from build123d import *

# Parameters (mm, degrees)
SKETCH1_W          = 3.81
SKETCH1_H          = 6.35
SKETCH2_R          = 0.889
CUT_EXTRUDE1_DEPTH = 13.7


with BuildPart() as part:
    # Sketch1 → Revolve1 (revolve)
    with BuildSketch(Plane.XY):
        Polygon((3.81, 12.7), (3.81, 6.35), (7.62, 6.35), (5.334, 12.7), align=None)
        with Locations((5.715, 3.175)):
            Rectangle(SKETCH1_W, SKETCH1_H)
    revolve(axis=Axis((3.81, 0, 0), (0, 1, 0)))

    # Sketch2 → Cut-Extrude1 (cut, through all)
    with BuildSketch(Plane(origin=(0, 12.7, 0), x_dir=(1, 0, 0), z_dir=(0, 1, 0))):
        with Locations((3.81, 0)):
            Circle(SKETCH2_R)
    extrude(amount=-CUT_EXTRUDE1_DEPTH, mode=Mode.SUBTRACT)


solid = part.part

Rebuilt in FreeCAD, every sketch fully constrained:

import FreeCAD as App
import Part
import Sketcher
from FreeCAD import Vector
Q = App.Units.Quantity


def add_polygon(sketch, points):
    """Adds a closed chain of lines whose ends are joined by coincident constraints."""
    first, n = sketch.GeometryCount, len(points)
    for a, b in zip(points, points[1:] + points[:1]):
        sketch.addGeometry(Part.LineSegment(App.Vector(*a, 0), App.Vector(*b, 0)), False)
    for i in range(n):
        sketch.addConstraint(Sketcher.Constraint("Coincident", first + i, 2, first + (i + 1) % n, 1))

doc = App.newDocument("Part")
params = doc.addObject("Spreadsheet::Sheet", "Params")
for row, (alias, value) in enumerate([
    ("sketch1_height", "0.5 in"),
    ("sketch1_width", "0.15 in"),
    ("sketch1_width2", "0.06 in"),
    ("sketch1_height2", "0.25 in"),
    ("revolution_angle", "360 deg"),
    ("sketch2_diameter", "0.07 in"),
], start=1):
    params.set(f"A{row}", alias)
    params.set(f"B{row}", "=" + value)
    params.setAlias(f"B{row}", alias)

body = doc.addObject("PartDesign::Body", "Body")

sketch1 = body.newObject("Sketcher::SketchObject", "Sketch")
sketch1.AttachmentSupport = (doc.getObject("XY_Plane"), [""])
sketch1.MapMode = "FlatFace"
add_polygon(sketch1, [(3.81, 12.7), (3.81, 0), (7.62, 0), (7.62, 6.35), (5.334, 12.7)])
sketch1.addGeometry(Part.LineSegment(Vector(3.81, 0, 0), Vector(3.81, 12.7, 0)), True)
sketch1.addConstraint([
    Sketcher.Constraint("Vertical", 0),
    Sketcher.Constraint("Horizontal", 1),
    Sketcher.Constraint("Vertical", 2),
    Sketcher.Constraint("Horizontal", 4),
    Sketcher.Constraint("Vertical", 5),
    Sketcher.Constraint("Coincident", 5, 1, 0, 2),
    Sketcher.Constraint("PointOnObject", 0, 2, -1),
    Sketcher.Constraint("Horizontal", 3, 2, 5, 2),
    Sketcher.Constraint("DistanceY", 0, 2, 0, 1, Q("0.5 in")),
    Sketcher.Constraint("DistanceX", 1, 1, 1, 2, Q("0.15 in")),
    Sketcher.Constraint("DistanceX", 4, 2, 4, 1, Q("0.06 in")),
    Sketcher.Constraint("DistanceY", 2, 1, 2, 2, Q("0.25 in")),
    Sketcher.Constraint("DistanceX", -1, 1, 1, 2, Q("0.3 in")),
])
sketch1.setExpression("Constraints[13]", "Params.sketch1_height")
sketch1.setExpression("Constraints[14]", "Params.sketch1_width")
sketch1.setExpression("Constraints[15]", "Params.sketch1_width2")
sketch1.setExpression("Constraints[16]", "Params.sketch1_height2")
revolution = body.newObject("PartDesign::Revolution", "Revolution")
revolution.Profile = sketch1
revolution.ReferenceAxis = (sketch1, ["Axis0"])
revolution.setExpression("Angle", "Params.revolution_angle")

sketch2 = body.newObject("Sketcher::SketchObject", "Sketch001")
sketch2.AttachmentSupport = (doc.getObject("XZ_Plane"), [""])
sketch2.MapMode = "FlatFace"
sketch2.AttachmentOffset = App.Placement(Vector(0, 0, -0.5 * 25.4), App.Rotation())
sketch2.addGeometry(Part.Circle(Vector(3.81, 0, 0), Vector(0, 0, 1), 0.889), False)
sketch2.addConstraint([
    Sketcher.Constraint("PointOnObject", 0, 3, -1),
    Sketcher.Constraint("Diameter", 0, Q("0.07 in")),
    Sketcher.Constraint("DistanceX", -1, 1, 0, 3, Q("0.15 in")),
])
sketch2.setExpression("Constraints[1]", "Params.sketch2_diameter")
pocket1 = body.newObject("PartDesign::Pocket", "Pocket")
pocket1.Profile = sketch2
pocket1.Type = "ThroughAll"
pocket1.Reversed = True

doc.recompute()
